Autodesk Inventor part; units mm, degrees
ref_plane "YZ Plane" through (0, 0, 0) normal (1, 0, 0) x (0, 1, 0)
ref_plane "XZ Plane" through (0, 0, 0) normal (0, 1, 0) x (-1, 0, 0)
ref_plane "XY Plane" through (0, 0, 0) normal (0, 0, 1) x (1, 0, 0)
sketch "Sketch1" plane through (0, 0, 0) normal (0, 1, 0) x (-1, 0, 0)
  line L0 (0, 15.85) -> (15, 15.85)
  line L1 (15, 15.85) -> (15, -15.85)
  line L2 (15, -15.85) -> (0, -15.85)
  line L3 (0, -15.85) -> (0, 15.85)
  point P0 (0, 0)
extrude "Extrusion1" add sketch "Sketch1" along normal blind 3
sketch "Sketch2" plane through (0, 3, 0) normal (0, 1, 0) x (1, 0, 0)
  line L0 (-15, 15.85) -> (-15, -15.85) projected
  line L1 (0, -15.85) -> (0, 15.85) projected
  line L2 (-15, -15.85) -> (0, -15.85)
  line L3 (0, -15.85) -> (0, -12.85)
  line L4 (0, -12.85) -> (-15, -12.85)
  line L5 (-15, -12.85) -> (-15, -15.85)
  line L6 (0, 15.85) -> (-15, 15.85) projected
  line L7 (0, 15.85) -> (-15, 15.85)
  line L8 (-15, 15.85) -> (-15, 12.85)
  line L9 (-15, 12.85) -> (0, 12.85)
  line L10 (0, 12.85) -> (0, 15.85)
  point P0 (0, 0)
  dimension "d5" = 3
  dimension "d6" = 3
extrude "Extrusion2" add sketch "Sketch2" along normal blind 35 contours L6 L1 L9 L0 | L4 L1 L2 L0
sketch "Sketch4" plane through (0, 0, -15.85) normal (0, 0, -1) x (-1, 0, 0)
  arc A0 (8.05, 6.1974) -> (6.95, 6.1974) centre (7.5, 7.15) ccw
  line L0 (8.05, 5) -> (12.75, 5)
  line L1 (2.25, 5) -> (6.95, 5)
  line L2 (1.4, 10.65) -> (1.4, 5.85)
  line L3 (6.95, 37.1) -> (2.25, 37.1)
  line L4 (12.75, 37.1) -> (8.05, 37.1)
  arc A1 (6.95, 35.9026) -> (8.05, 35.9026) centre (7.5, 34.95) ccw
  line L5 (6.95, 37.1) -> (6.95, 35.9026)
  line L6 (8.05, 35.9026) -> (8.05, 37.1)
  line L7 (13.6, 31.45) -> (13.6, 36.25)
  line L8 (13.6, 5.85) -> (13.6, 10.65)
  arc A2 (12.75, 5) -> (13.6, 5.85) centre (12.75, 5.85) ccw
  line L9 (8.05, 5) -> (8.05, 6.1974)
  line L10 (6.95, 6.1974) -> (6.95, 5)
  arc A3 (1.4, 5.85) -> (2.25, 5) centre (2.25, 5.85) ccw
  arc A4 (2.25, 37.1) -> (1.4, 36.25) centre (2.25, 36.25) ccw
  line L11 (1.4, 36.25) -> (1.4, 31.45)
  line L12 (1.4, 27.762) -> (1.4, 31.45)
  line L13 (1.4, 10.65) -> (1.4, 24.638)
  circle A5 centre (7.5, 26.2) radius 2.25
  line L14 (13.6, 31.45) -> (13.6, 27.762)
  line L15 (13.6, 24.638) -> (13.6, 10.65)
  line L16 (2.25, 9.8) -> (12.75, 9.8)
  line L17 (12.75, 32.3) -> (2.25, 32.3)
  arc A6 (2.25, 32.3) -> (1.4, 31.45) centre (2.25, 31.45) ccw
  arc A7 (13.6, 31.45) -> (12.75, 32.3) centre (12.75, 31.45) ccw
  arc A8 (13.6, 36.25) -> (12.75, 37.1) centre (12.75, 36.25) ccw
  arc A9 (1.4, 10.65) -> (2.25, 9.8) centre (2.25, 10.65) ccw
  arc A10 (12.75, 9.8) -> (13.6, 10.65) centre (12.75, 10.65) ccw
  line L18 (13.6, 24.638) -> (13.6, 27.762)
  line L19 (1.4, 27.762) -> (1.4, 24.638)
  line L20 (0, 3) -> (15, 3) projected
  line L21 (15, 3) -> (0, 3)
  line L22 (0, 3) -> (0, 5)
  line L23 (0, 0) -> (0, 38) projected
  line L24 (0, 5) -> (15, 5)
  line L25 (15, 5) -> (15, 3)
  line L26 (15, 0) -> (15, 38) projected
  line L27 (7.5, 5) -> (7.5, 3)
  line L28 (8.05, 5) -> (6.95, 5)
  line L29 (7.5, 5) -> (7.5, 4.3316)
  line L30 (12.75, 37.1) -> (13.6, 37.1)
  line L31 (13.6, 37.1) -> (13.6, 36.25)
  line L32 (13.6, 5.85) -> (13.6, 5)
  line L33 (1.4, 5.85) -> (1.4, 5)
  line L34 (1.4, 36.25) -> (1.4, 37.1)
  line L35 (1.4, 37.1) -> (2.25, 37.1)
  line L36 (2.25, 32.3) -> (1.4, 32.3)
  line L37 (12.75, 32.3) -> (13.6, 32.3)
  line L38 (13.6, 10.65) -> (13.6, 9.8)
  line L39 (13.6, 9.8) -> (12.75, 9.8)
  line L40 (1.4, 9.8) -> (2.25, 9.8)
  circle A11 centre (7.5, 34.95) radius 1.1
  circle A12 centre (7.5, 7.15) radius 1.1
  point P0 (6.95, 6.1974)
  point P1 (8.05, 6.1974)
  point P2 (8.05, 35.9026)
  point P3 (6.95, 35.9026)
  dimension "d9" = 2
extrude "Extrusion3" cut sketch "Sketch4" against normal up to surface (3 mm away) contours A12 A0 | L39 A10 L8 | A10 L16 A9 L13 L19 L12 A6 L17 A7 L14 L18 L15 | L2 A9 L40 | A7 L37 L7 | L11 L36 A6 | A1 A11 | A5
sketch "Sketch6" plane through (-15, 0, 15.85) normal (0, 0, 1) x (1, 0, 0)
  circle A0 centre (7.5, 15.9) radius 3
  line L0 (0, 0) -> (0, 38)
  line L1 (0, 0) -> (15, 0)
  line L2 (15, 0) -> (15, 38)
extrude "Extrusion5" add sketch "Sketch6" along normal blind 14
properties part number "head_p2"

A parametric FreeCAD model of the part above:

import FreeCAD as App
import Part
import Sketcher
from FreeCAD import Vector

doc = App.newDocument("Part")
body = doc.addObject("PartDesign::Body", "Body")

# Sketch on XZ plane
sketch1 = body.newObject("Sketcher::SketchObject", "Sketch")
sketch1.AttachmentSupport = (doc.getObject("XZ_Plane"), [""])
sketch1.MapMode = "FlatFace"
sketch1.addGeometry([
    Part.LineSegment(Vector(-15, 15.85, 0), Vector(0, 15.85, 0)),
    Part.LineSegment(Vector(0, 15.85, 0), Vector(0, -15.85, 0)),
    Part.LineSegment(Vector(0, -15.85, 0), Vector(-15, -15.85, 0)),
    Part.LineSegment(Vector(-15, -15.85, 0), Vector(-15, 15.85, 0)),
], False)
sketch1.addConstraint([
    Sketcher.Constraint("Coincident", 0, 2, 1, 1),
    Sketcher.Constraint("Coincident", 1, 2, 2, 1),
    Sketcher.Constraint("Coincident", 2, 2, 3, 1),
    Sketcher.Constraint("Coincident", 3, 2, 0, 1),
    Sketcher.Constraint("Horizontal", 0),
    Sketcher.Constraint("Vertical", 1),
    Sketcher.Constraint("Horizontal", 2),
    Sketcher.Constraint("Vertical", 3),
    Sketcher.Constraint("Symmetric", 0, 2, 1, 2, -1, 1),
    Sketcher.Constraint("DistanceX", 0, 1, 0, 2, 15.0),
    Sketcher.Constraint("DistanceY", 1, 2, 1, 1, 31.7),
])
pad1 = body.newObject("PartDesign::Pad", "Pad")
pad1.Profile = sketch1
pad1.Length = 3
pad1.Reversed = True

# Sketch on XZ plane
sketch2 = body.newObject("Sketcher::SketchObject", "Sketch001")
sketch2.AttachmentSupport = (doc.getObject("XZ_Plane"), [""])
sketch2.MapMode = "FlatFace"
sketch2.AttachmentOffset = App.Placement(Vector(0, 0, -3), App.Rotation())
sketch2.addGeometry([
    Part.LineSegment(Vector(0, -15.85, 0), Vector(-15, -15.85, 0)),  # 0
    Part.LineSegment(Vector(-15, -15.85, 0), Vector(-15, -12.85, 0)),  # 1
    Part.LineSegment(Vector(-15, -12.85, 0), Vector(0, -12.85, 0)),  # 2
    Part.LineSegment(Vector(0, -12.85, 0), Vector(0, -15.85, 0)),  # 3
    Part.LineSegment(Vector(0, 12.85, 0), Vector(-15, 12.85, 0)),  # 4
    Part.LineSegment(Vector(-15, 12.85, 0), Vector(-15, 15.85, 0)),  # 5
    Part.LineSegment(Vector(-15, 15.85, 0), Vector(0, 15.85, 0)),  # 6
    Part.LineSegment(Vector(0, 15.85, 0), Vector(0, 12.85, 0)),  # 7
], False)
sketch2.addConstraint([
    Sketcher.Constraint("Coincident", 0, 2, 1, 1),
    Sketcher.Constraint("Coincident", 1, 2, 2, 1),
    Sketcher.Constraint("Coincident", 2, 2, 3, 1),
    Sketcher.Constraint("Coincident", 3, 2, 0, 1),
    Sketcher.Constraint("Coincident", 4, 2, 5, 1),
    Sketcher.Constraint("Coincident", 5, 2, 6, 1),
    Sketcher.Constraint("Coincident", 6, 2, 7, 1),
    Sketcher.Constraint("Coincident", 7, 2, 4, 1),
    Sketcher.Constraint("Horizontal", 0),
    Sketcher.Constraint("Vertical", 1),
    Sketcher.Constraint("Horizontal", 2),
    Sketcher.Constraint("Vertical", 3),
    Sketcher.Constraint("Horizontal", 4),
    Sketcher.Constraint("Vertical", 5),
    Sketcher.Constraint("Horizontal", 6),
    Sketcher.Constraint("Vertical", 7),
    Sketcher.Constraint("Symmetric", 3, 2, 6, 2, -1, 1),
    Sketcher.Constraint("Symmetric", 1, 2, 4, 2, -1),
    Sketcher.Constraint("PointOnObject", 2, 2, -2),
    Sketcher.Constraint("DistanceY", 1, 1, 1, 2, 3.0),
    Sketcher.Constraint("DistanceX", 0, 2, 0, 1, 15.0),
    Sketcher.Constraint("DistanceY", 1, 2, 4, 2, 25.7),
])
pad2 = body.newObject("PartDesign::Pad", "Pad001")
pad2.Profile = sketch2
pad2.Length = 35
pad2.Reversed = True

# Sketch on XY plane
sketch3 = body.newObject("Sketcher::SketchObject", "Sketch002")
sketch3.AttachmentSupport = (doc.getObject("XY_Plane"), [""])
sketch3.MapMode = "FlatFace"
sketch3.AttachmentOffset = App.Placement(Vector(0, 0, -15.85), App.Rotation())
sketch3.addGeometry([
    Part.Circle(Vector(-7.5, 7.15, 0), Vector(0, 0, 1), 1.099976),  # 0
    Part.LineSegment(Vector(-13.6, 9.8, 0), Vector(-13.6, 32.3, 0)),  # 1
    Part.LineSegment(Vector(-13.6, 32.3, 0), Vector(-1.4, 32.3, 0)),  # 2
    Part.LineSegment(Vector(-1.4, 32.3, 0), Vector(-1.4, 9.8, 0)),  # 3
    Part.LineSegment(Vector(-1.4, 9.8, 0), Vector(-13.6, 9.8, 0)),  # 4
    Part.Circle(Vector(-7.5, 34.95, 0), Vector(0, 0, 1), 1.1),  # 5
], False)
sketch3.addConstraint([
    Sketcher.Constraint("Coincident", 1, 2, 2, 1),
    Sketcher.Constraint("Coincident", 2, 2, 3, 1),
    Sketcher.Constraint("Coincident", 3, 2, 4, 1),
    Sketcher.Constraint("Coincident", 4, 2, 1, 1),
    Sketcher.Constraint("Vertical", 1),
    Sketcher.Constraint("Horizontal", 2),
    Sketcher.Constraint("Vertical", 3),
    Sketcher.Constraint("Horizontal", 4),
    Sketcher.Constraint("Equal", 0, 5),
    Sketcher.Constraint("Vertical", 0, 3, 5, 3),
    Sketcher.Constraint("Diameter", 0, 2.2),
    Sketcher.Constraint("DistanceX", 2, 1, 2, 2, 12.2),
    Sketcher.Constraint("DistanceY", 1, 1, 1, 2, 22.5),
    Sketcher.Constraint("DistanceX", 0, 3, -1, 1, 7.5),
    Sketcher.Constraint("DistanceX", 1, 2, -1, 1, 13.6),
    Sketcher.Constraint("DistanceY", -1, 1, 1, 2, 32.3),
    Sketcher.Constraint("DistanceY", 0, 3, 5, 3, 27.8),
    Sketcher.Constraint("DistanceY", -1, 1, 0, 3, 7.15),
])
pocket1 = body.newObject("PartDesign::Pocket", "Pocket")
pocket1.Profile = sketch3
pocket1.Length = 3
pocket1.Reversed = True

# Sketch on XY plane
sketch4 = body.newObject("Sketcher::SketchObject", "Sketch003")
sketch4.AttachmentSupport = (doc.getObject("XY_Plane"), [""])
sketch4.MapMode = "FlatFace"
sketch4.AttachmentOffset = App.Placement(Vector(0, 0, 15.85), App.Rotation())
sketch4.addGeometry(Part.Circle(Vector(-7.5, 15.9, 0), Vector(0, 0, 1), 3), False)
sketch4.addConstraint([
    Sketcher.Constraint("Diameter", 0, 6.0),
    Sketcher.Constraint("DistanceX", 0, 3, -1, 1, 7.5),
    Sketcher.Constraint("DistanceY", -1, 1, 0, 3, 15.9),
])
pad3 = body.newObject("PartDesign::Pad", "Pad002")
pad3.Profile = sketch4
pad3.Length = 14

doc.recompute()
